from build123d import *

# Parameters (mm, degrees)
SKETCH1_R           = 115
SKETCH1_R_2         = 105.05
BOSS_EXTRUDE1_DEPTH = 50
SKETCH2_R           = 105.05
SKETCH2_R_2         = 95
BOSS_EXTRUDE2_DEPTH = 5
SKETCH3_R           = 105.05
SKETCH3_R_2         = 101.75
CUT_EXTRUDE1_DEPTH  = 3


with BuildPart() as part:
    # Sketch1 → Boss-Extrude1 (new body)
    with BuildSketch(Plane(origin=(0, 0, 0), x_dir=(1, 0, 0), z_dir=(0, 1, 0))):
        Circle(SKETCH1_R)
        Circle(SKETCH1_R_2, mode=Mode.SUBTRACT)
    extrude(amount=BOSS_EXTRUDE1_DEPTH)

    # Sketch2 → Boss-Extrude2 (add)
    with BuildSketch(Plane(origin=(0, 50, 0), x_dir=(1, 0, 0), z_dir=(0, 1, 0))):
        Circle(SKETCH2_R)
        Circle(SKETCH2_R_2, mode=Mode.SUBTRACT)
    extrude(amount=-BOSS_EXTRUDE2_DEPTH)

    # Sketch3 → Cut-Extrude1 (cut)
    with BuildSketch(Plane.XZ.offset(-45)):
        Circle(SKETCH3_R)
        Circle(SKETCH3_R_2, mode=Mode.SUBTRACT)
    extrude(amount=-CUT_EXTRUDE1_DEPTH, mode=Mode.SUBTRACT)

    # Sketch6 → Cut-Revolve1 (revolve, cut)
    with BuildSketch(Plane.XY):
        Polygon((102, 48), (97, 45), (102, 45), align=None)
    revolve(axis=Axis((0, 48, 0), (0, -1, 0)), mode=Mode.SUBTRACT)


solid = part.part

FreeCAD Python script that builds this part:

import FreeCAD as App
import Part
import Sketcher
Q = App.Units.Quantity

doc = App.newDocument("Part")
body = doc.addObject("PartDesign::Body", "Body")

sketch1 = doc.addObject("Sketcher::SketchObject", "Sketch")
body.addObject(sketch1)
sketch1.AttachmentSupport = (doc.XZ_Plane, [""])
sketch1.MapMode = "FlatFace"
sketch1.addGeometry([
    Part.Circle(App.Vector(0, 0, 0), App.Vector(0, 0, 1), 115),
    Part.Circle(App.Vector(0, 0, 0), App.Vector(0, 0, 1), 105.05),
], False)
sketch1.addConstraint([
    Sketcher.Constraint("Coincident", 0, 3, -1, 1),
    Sketcher.Constraint("Coincident", 1, 3, -1, 1),
    Sketcher.Constraint("Diameter", 0, Q("230 mm")),
    Sketcher.Constraint("Diameter", 1, Q("210.1 mm")),
])
pad1 = doc.addObject("PartDesign::Pad", "Pad")
body.addObject(pad1)
pad1.Profile = sketch1
pad1.Length = 50
pad1.Reversed = True

sketch2 = doc.addObject("Sketcher::SketchObject", "Sketch001")
body.addObject(sketch2)
sketch2.AttachmentSupport = (doc.XZ_Plane, [""])
sketch2.MapMode = "FlatFace"
sketch2.AttachmentOffset = App.Placement(App.Vector(0, 0, -50), App.Rotation())
sketch2.addGeometry([
    Part.Circle(App.Vector(0, 0, 0), App.Vector(0, 0, 1), 105.05),
    Part.Circle(App.Vector(0, 0, 0), App.Vector(0, 0, 1), 95),
], False)
sketch2.addConstraint([
    Sketcher.Constraint("Coincident", 0, 3, -1, 1),
    Sketcher.Constraint("Coincident", 1, 3, -1, 1),
    Sketcher.Constraint("Diameter", 1, Q("190 mm")),
    Sketcher.Constraint("Diameter", 0, Q("210.1 mm")),
])
pad2 = doc.addObject("PartDesign::Pad", "Pad001")
body.addObject(pad2)
pad2.Profile = sketch2
pad2.Length = 5

sketch3 = doc.addObject("Sketcher::SketchObject", "Sketch002")
body.addObject(sketch3)
sketch3.AttachmentSupport = (doc.XZ_Plane, [""])
sketch3.MapMode = "FlatFace"
sketch3.AttachmentOffset = App.Placement(App.Vector(0, 0, -45), App.Rotation())
sketch3.addGeometry([
    Part.Circle(App.Vector(0, 0, 0), App.Vector(0, 0, 1), 105.05),
    Part.Circle(App.Vector(0, 0, 0), App.Vector(0, 0, 1), 101.75),
], False)
sketch3.addConstraint([
    Sketcher.Constraint("Coincident", 0, 3, -1, 1),
    Sketcher.Constraint("Coincident", 1, 3, -1, 1),
    Sketcher.Constraint("Diameter", 0, Q("210.1 mm")),
    Sketcher.Constraint("Diameter", 1, Q("203.5 mm")),
])
pocket1 = doc.addObject("PartDesign::Pocket", "Pocket")
body.addObject(pocket1)
pocket1.Profile = sketch3
pocket1.Length = 3

sketch4 = doc.addObject("Sketcher::SketchObject", "Sketch003")
body.addObject(sketch4)
sketch4.AttachmentSupport = (doc.XY_Plane, [""])
sketch4.MapMode = "FlatFace"
sketch4.addGeometry([
    Part.LineSegment(App.Vector(102, 48, 0), App.Vector(97, 45, 0)),
    Part.LineSegment(App.Vector(97, 45, 0), App.Vector(102, 45, 0)),
    Part.LineSegment(App.Vector(102, 45, 0), App.Vector(102, 48, 0)),
], False)
sketch4.addConstraint([
    Sketcher.Constraint("Coincident", 0, 2, 1, 1),
    Sketcher.Constraint("Coincident", 1, 2, 2, 1),
    Sketcher.Constraint("Coincident", 2, 2, 0, 1),
    Sketcher.Constraint("Horizontal", 1),
    Sketcher.Constraint("Vertical", 2),
    Sketcher.Constraint("DistanceX", 1, 1, 1, 2, Q("5 mm")),
    Sketcher.Constraint("DistanceY", 2, 1, 2, 2, Q("3 mm")),
    Sketcher.Constraint("DistanceX", -1, 1, 0, 2, Q("97 mm")),
    Sketcher.Constraint("DistanceY", -1, 1, 0, 2, Q("45 mm")),
])
groove = doc.addObject("PartDesign::Groove", "Groove")
body.addObject(groove)
groove.Profile = sketch4
groove.ReferenceAxis = (sketch4, ["V_Axis"])
groove.Angle = 360

doc.recompute()
